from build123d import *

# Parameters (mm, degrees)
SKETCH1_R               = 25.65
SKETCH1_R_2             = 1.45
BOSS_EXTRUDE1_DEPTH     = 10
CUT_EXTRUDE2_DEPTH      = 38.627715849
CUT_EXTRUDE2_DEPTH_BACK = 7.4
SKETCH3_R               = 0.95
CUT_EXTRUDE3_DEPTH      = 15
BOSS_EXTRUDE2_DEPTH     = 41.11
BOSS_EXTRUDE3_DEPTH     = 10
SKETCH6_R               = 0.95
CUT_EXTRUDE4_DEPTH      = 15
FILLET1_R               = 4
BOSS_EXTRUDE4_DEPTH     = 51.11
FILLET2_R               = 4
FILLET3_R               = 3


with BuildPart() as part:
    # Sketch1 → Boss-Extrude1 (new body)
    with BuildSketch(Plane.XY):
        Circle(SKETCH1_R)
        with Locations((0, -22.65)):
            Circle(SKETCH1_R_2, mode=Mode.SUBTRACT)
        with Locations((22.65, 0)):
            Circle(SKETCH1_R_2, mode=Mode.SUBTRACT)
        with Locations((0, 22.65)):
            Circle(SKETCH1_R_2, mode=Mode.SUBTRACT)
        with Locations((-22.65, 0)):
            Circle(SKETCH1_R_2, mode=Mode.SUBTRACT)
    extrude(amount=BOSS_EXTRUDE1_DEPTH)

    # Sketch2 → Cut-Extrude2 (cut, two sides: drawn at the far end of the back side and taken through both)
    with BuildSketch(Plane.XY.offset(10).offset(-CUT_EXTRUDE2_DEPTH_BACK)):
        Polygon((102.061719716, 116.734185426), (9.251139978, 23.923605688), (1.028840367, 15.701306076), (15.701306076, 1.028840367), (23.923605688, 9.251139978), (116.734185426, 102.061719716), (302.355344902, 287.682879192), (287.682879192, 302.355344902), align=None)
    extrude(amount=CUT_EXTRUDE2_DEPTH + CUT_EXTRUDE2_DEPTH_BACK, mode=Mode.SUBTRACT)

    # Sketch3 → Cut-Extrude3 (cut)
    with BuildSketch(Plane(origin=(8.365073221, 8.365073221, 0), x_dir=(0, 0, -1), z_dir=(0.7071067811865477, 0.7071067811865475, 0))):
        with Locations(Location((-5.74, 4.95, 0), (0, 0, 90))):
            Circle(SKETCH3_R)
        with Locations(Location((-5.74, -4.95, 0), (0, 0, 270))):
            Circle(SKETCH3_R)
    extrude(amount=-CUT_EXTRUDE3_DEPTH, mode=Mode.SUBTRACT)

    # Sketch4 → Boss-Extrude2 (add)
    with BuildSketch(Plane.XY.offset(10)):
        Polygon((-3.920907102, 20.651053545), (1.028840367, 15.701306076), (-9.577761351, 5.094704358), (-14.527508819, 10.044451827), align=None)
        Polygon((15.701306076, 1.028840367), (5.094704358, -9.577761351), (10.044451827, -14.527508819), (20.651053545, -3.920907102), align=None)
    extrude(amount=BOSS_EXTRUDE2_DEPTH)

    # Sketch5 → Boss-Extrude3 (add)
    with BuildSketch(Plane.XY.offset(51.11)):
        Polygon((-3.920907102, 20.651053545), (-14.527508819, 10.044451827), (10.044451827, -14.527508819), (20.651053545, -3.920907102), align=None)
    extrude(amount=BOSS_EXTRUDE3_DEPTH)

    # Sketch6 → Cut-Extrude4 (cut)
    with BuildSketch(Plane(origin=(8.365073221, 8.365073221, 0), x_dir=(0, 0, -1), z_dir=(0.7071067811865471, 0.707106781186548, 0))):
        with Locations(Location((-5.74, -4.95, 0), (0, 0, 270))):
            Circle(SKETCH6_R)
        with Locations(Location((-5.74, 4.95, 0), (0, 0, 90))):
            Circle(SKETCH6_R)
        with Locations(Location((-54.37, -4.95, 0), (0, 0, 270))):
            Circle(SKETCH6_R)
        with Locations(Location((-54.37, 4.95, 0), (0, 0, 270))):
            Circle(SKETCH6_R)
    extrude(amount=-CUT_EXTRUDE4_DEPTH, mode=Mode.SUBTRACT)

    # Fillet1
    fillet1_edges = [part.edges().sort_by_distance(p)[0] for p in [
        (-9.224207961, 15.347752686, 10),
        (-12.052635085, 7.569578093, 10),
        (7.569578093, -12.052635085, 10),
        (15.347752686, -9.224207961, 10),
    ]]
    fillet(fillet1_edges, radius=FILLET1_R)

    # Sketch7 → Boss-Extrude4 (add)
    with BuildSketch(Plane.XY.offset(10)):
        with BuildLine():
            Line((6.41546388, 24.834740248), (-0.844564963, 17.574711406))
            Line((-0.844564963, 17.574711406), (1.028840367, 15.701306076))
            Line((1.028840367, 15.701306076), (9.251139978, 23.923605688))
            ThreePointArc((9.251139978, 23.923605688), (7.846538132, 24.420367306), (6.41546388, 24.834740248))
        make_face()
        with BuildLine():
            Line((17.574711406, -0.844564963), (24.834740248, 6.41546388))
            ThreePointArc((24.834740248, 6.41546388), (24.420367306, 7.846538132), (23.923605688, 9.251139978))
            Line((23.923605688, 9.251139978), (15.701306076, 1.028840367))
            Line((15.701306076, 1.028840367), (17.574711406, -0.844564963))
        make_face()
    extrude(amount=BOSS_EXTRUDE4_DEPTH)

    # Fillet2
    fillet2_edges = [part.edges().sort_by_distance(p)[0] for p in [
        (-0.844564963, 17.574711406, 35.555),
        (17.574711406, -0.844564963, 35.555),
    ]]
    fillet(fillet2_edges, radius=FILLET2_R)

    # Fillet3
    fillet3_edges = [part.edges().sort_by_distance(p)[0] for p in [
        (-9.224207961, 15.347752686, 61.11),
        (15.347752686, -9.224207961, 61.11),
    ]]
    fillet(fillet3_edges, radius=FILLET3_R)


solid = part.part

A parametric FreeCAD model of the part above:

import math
import FreeCAD as App
import Part
import Sketcher

V = App.Vector
Q = App.Units.Quantity


def edges_at(feature, points):
    """Names of the edges that pass closest to the given points."""
    edges = feature.Shape.Edges
    near = lambda p: min(range(len(edges)), key=lambda i: edges[i].distToShape(Part.Vertex(*p))[0])
    return sorted({f"Edge{near(p) + 1}" for p in points})


def add_polygon(sketch, points):
    """Adds a closed chain of lines whose ends are joined by coincident constraints."""
    first, n = sketch.GeometryCount, len(points)
    for a, b in zip(points, points[1:] + points[:1]):
        sketch.addGeometry(Part.LineSegment(App.Vector(*a, 0), App.Vector(*b, 0)), False)
    for i in range(n):
        sketch.addConstraint(Sketcher.Constraint("Coincident", first + i, 2, first + (i + 1) % n, 1))

doc = App.newDocument("Part")
body = doc.addObject("PartDesign::Body", "Body")

# Sketch on XY plane
sketch1 = doc.addObject("Sketcher::SketchObject", "Sketch")
body.addObject(sketch1)
sketch1.AttachmentSupport = (doc.XY_Plane, [""])
sketch1.MapMode = "FlatFace"
sketch1.addGeometry(Part.Circle(V(0, 0, 0), V(0, 0, 1), 25.65), False)
sketch1.addGeometry(Part.Circle(V(0, -22.65, 0), V(0, 0, 1), 1.45), False)
sketch1.addGeometry(Part.Circle(V(-22.65, 0, 0), V(0, 0, 1), 1.45), False)
sketch1.addGeometry(Part.Circle(V(22.65, 0, 0), V(0, 0, 1), 1.45), False)
sketch1.addGeometry(Part.Circle(V(0, 22.65, 0), V(0, 0, 1), 1.45), False)
sketch1.addConstraint(Sketcher.Constraint("Coincident", 0, 3, -1, 1))
sketch1.addConstraint(Sketcher.Constraint("Equal", 1, 2))
sketch1.addConstraint(Sketcher.Constraint("Equal", 2, 3))
sketch1.addConstraint(Sketcher.Constraint("Equal", 3, 4))
sketch1.addConstraint(Sketcher.Constraint("Symmetric", 2, 3, 3, 3, -1, 1))
sketch1.addConstraint(Sketcher.Constraint("Symmetric", 1, 3, 4, 3, -1, 1))
sketch1.addConstraint(Sketcher.Constraint("PointOnObject", 1, 3, -2))
sketch1.addConstraint(Sketcher.Constraint("PointOnObject", 2, 3, -1))
sketch1.addConstraint(Sketcher.Constraint("Diameter", 0, 51.3))
sketch1.addConstraint(Sketcher.Constraint("Diameter", 1, 2.9))
sketch1.addConstraint(Sketcher.Constraint("DistanceX", 2, 3, 3, 3, 45.3))
sketch1.addConstraint(Sketcher.Constraint("DistanceY", 1, 3, 4, 3, 45.3))
pad1 = doc.addObject("PartDesign::Pad", "Pad")
body.addObject(pad1)
pad1.Profile = sketch1
pad1.Length = 10

# Sketch on XY plane
sketch2 = doc.addObject("Sketcher::SketchObject", "Sketch001")
body.addObject(sketch2)
sketch2.AttachmentSupport = (doc.XY_Plane, [""])
sketch2.MapMode = "FlatFace"
sketch2.AttachmentOffset = App.Placement(V(0, 0, 10), App.Rotation())
add_polygon(sketch2, [(9.25114, 23.923606), (1.02884, 15.701306), (15.701306, 1.02884), (23.923606, 9.25114), (302.355345, 287.682879), (287.682879, 302.355345)])  # lines 0-5
sketch2.addConstraint(Sketcher.Constraint("Perpendicular", 0, 1))
sketch2.addConstraint(Sketcher.Constraint("Perpendicular", 1, 2))
sketch2.addConstraint(Sketcher.Constraint("Parallel", 2, 3))
sketch2.addConstraint(Sketcher.Constraint("Perpendicular", 3, 4))
sketch2.addConstraint(Sketcher.Constraint("Perpendicular", 4, 5))
sketch2.addConstraint(Sketcher.Constraint("Equal", 0, 2))
sketch2.addConstraint(Sketcher.Constraint("Angle", 0, Q("-135 deg")))
sketch2.addConstraint(Sketcher.Constraint("Distance", 1, 20.75))
sketch2.addConstraint(Sketcher.Constraint("DistanceX", 1, 2, 2, 2, 8.2223))
sketch2.addConstraint(Sketcher.Constraint("Distance", 3, 393.761942))
sketch2.addConstraint(Sketcher.Constraint("DistanceX", -1, 1, 0, 2, 1.02884))
sketch2.addConstraint(Sketcher.Constraint("DistanceY", -1, 1, 1, 2, 1.02884))
pocket1 = doc.addObject("PartDesign::Pocket", "Pocket")
body.addObject(pocket1)
pocket1.Profile = sketch2
pocket1.Type = "TwoLengths"
pocket1.Length = 38.627716
pocket1.Length2 = 7.4
pocket1.Reversed = True

# Sketch on an angled plane
sketch3 = doc.addObject("Sketcher::SketchObject", "Sketch002")
body.addObject(sketch3)
sketch3.Placement = App.Placement(V(8.365073, 8.365073, 0), App.Rotation(V(0, 0, -1), V(-0.707106781, 0.707106781, 0), V(0.707106781, 0.707106781, 0), "ZXY"))
sketch3.addGeometry(Part.Circle(V(-5.74, 4.95, 0), V(0, 0, 1), 0.95), False)
sketch3.addGeometry(Part.Circle(V(-5.74, -4.95, 0), V(0, 0, 1), 0.95), False)
sketch3.addConstraint(Sketcher.Constraint("Equal", 0, 1))
sketch3.addConstraint(Sketcher.Constraint("Symmetric", 0, 3, 1, 3, -1))
sketch3.addConstraint(Sketcher.Constraint("Diameter", 0, 1.9))
sketch3.addConstraint(Sketcher.Constraint("DistanceY", 1, 3, 0, 3, 9.9))
sketch3.addConstraint(Sketcher.Constraint("DistanceX", 0, 3, -1, 1, 5.74))
pocket2 = doc.addObject("PartDesign::Pocket", "Pocket001")
body.addObject(pocket2)
pocket2.Profile = sketch3
pocket2.Length = 15

# Sketch on XY plane
sketch4 = doc.addObject("Sketcher::SketchObject", "Sketch003")
body.addObject(sketch4)
sketch4.AttachmentSupport = (doc.XY_Plane, [""])
sketch4.MapMode = "FlatFace"
sketch4.AttachmentOffset = App.Placement(V(0, 0, 10), App.Rotation())
add_polygon(sketch4, [(1.02884, 15.701306), (-3.920907, 20.651054), (-14.527509, 10.044452), (-9.577761, 5.094704)])  # lines 0-3
add_polygon(sketch4, [(15.701306, 1.02884), (5.094704, -9.577761), (10.044452, -14.527509), (20.651054, -3.920907)])  # lines 4-7
sketch4.addConstraint(Sketcher.Constraint("Perpendicular", 0, 1))
sketch4.addConstraint(Sketcher.Constraint("Perpendicular", 1, 2))
sketch4.addConstraint(Sketcher.Constraint("Perpendicular", 2, 3))
sketch4.addConstraint(Sketcher.Constraint("Parallel", 3, 4))
sketch4.addConstraint(Sketcher.Constraint("Perpendicular", 4, 5))
sketch4.addConstraint(Sketcher.Constraint("Perpendicular", 5, 6))
sketch4.addConstraint(Sketcher.Constraint("Perpendicular", 6, 7))
sketch4.addConstraint(Sketcher.Constraint("Equal", 3, 4))
sketch4.addConstraint(Sketcher.Constraint("Equal", 2, 5))
sketch4.addConstraint(Sketcher.Constraint("Angle", 0, Q("135 deg")))
sketch4.addConstraint(Sketcher.Constraint("Distance", 0, 7.0))
sketch4.addConstraint(Sketcher.Constraint("Distance", 1, 15.0))
sketch4.addConstraint(Sketcher.Constraint("DistanceX", 1, 2, -1, 1, 14.527509))
sketch4.addConstraint(Sketcher.Constraint("DistanceY", -1, 1, 1, 2, 10.044452))
sketch4.addConstraint(Sketcher.Constraint("DistanceY", 4, 2, -1, 1, 9.577761))
sketch4.addConstraint(Sketcher.Constraint("DistanceX", -1, 1, 5, 2, 10.044452))
pad2 = doc.addObject("PartDesign::Pad", "Pad001")
body.addObject(pad2)
pad2.Profile = sketch4
pad2.Length = 41.11

# Sketch on XY plane
sketch5 = doc.addObject("Sketcher::SketchObject", "Sketch004")
body.addObject(sketch5)
sketch5.AttachmentSupport = (doc.XY_Plane, [""])
sketch5.MapMode = "FlatFace"
sketch5.AttachmentOffset = App.Placement(V(0, 0, 51.11), App.Rotation())
add_polygon(sketch5, [(-3.920907, 20.651054), (-14.527509, 10.044452), (10.044452, -14.527509), (20.651054, -3.920907)])  # lines 0-3
sketch5.addConstraint(Sketcher.Constraint("Perpendicular", 0, 1))
sketch5.addConstraint(Sketcher.Constraint("Perpendicular", 1, 2))
sketch5.addConstraint(Sketcher.Constraint("Perpendicular", 2, 3))
sketch5.addConstraint(Sketcher.Constraint("Angle", 0, Q("-135 deg")))
sketch5.addConstraint(Sketcher.Constraint("Distance", 0, 15.0))
sketch5.addConstraint(Sketcher.Constraint("Distance", 1, 34.75))
sketch5.addConstraint(Sketcher.Constraint("DistanceX", 0, 2, -1, 1, 14.527509))
sketch5.addConstraint(Sketcher.Constraint("DistanceY", -1, 1, 0, 2, 10.044452))
pad3 = doc.addObject("PartDesign::Pad", "Pad002")
body.addObject(pad3)
pad3.Profile = sketch5
pad3.Length = 10

# Sketch on an angled plane
sketch6 = doc.addObject("Sketcher::SketchObject", "Sketch005")
body.addObject(sketch6)
sketch6.Placement = App.Placement(V(8.365073, 8.365073, 0), App.Rotation(V(0, 0, -1), V(-0.707106781, 0.707106781, 0), V(0.707106781, 0.707106781, 0), "ZXY"))
sketch6.addGeometry(Part.Circle(V(-5.74, -4.95, 0), V(0, 0, 1), 0.95), False)
sketch6.addGeometry(Part.Circle(V(-5.74, 4.95, 0), V(0, 0, 1), 0.95), False)
sketch6.addGeometry(Part.Circle(V(-54.37, -4.95, 0), V(0, 0, 1), 0.95), False)
sketch6.addGeometry(Part.Circle(V(-54.37, 4.95, 0), V(0, 0, 1), 0.95), False)
sketch6.addConstraint(Sketcher.Constraint("Equal", 0, 1))
sketch6.addConstraint(Sketcher.Constraint("Equal", 1, 2))
sketch6.addConstraint(Sketcher.Constraint("Equal", 2, 3))
sketch6.addConstraint(Sketcher.Constraint("Symmetric", 0, 3, 1, 3, -1))
sketch6.addConstraint(Sketcher.Constraint("Symmetric", 2, 3, 3, 3, -1))
sketch6.addConstraint(Sketcher.Constraint("Horizontal", 0, 3, 2, 3))
sketch6.addConstraint(Sketcher.Constraint("Diameter", 0, 1.9))
sketch6.addConstraint(Sketcher.Constraint("DistanceY", 0, 3, 1, 3, 9.9))
sketch6.addConstraint(Sketcher.Constraint("DistanceX", 0, 3, -1, 1, 5.74))
sketch6.addConstraint(Sketcher.Constraint("DistanceX", 2, 3, -1, 1, 54.37))
pocket3 = doc.addObject("PartDesign::Pocket", "Pocket002")
body.addObject(pocket3)
pocket3.Profile = sketch6
pocket3.Length = 15
doc.recompute()

fillet = doc.addObject("PartDesign::Fillet", "Fillet")
body.addObject(fillet)
fillet.Base = (pocket3, edges_at(pocket3, [
    (-9.224, 15.348, 10),
    (-12.053, 7.57, 10),
    (7.57, -12.053, 10),
    (15.348, -9.224, 10),
]))
fillet.Radius = 4

# Sketch on XY plane
sketch7 = doc.addObject("Sketcher::SketchObject", "Sketch006")
body.addObject(sketch7)
sketch7.AttachmentSupport = (doc.XY_Plane, [""])
sketch7.MapMode = "FlatFace"
sketch7.AttachmentOffset = App.Placement(V(0, 0, 10), App.Rotation())
sketch7.addGeometry(Part.LineSegment(V(6.415464, 24.83474, 0), V(-0.844565, 17.574711, 0)), False)
sketch7.addGeometry(Part.LineSegment(V(-0.844565, 17.574711, 0), V(1.02884, 15.701306, 0)), False)
sketch7.addGeometry(Part.LineSegment(V(1.02884, 15.701306, 0), V(9.25114, 23.923606, 0)), False)
sketch7.addGeometry(Part.ArcOfCircle(Part.Circle(V(0, 0, 0), V(0, 0, 1), 25.65), math.radians(68.85876), math.radians(75.51565)), False)
sketch7.addGeometry(Part.LineSegment(V(17.574711, -0.844565, 0), V(24.83474, 6.415464, 0)), False)
sketch7.addGeometry(Part.ArcOfCircle(Part.Circle(V(0, 0, 0), V(0, 0, 1), 25.65), math.radians(14.48435), math.radians(21.14124)), False)
sketch7.addGeometry(Part.LineSegment(V(23.923606, 9.25114, 0), V(15.701306, 1.02884, 0)), False)
sketch7.addGeometry(Part.LineSegment(V(15.701306, 1.02884, 0), V(17.574711, -0.844565, 0)), False)
sketch7.addConstraint(Sketcher.Constraint("Coincident", 0, 2, 1, 1))
sketch7.addConstraint(Sketcher.Constraint("Coincident", 1, 2, 2, 1))
sketch7.addConstraint(Sketcher.Constraint("Coincident", 2, 2, 3, 1))
sketch7.addConstraint(Sketcher.Constraint("Coincident", 3, 2, 0, 1))
sketch7.addConstraint(Sketcher.Constraint("Coincident", 4, 2, 5, 1))
sketch7.addConstraint(Sketcher.Constraint("Coincident", 5, 2, 6, 1))
sketch7.addConstraint(Sketcher.Constraint("Coincident", 6, 2, 7, 1))
sketch7.addConstraint(Sketcher.Constraint("Coincident", 7, 2, 4, 1))
sketch7.addConstraint(Sketcher.Constraint("Coincident", 3, 3, -1, 1))
sketch7.addConstraint(Sketcher.Constraint("Coincident", 5, 3, -1, 1))
sketch7.addConstraint(Sketcher.Constraint("Equal", 3, 5))
sketch7.addConstraint(Sketcher.Constraint("Perpendicular", 0, 1))
sketch7.addConstraint(Sketcher.Constraint("Perpendicular", 1, 2))
sketch7.addConstraint(Sketcher.Constraint("Parallel", 2, 4))
sketch7.addConstraint(Sketcher.Constraint("Parallel", 4, 6))
sketch7.addConstraint(Sketcher.Constraint("Perpendicular", 6, 7))
sketch7.addConstraint(Sketcher.Constraint("Equal", 0, 4))
sketch7.addConstraint(Sketcher.Constraint("Equal", 2, 6))
sketch7.addConstraint(Sketcher.Constraint("Equal", 1, 7))
sketch7.addConstraint(Sketcher.Constraint("Angle", 0, Q("-135 deg")))
sketch7.addConstraint(Sketcher.Constraint("Radius", 3, 25.65))
sketch7.addConstraint(Sketcher.Constraint("DistanceX", 1, 2, 2, 2, 8.2223))
sketch7.addConstraint(Sketcher.Constraint("DistanceX", 2, 2, 4, 2, 15.5836))
sketch7.addConstraint(Sketcher.Constraint("Distance", 0, 10.267231))
pad4 = doc.addObject("PartDesign::Pad", "Pad003")
body.addObject(pad4)
pad4.Profile = sketch7
pad4.Length = 51.11
doc.recompute()

fillet2 = doc.addObject("PartDesign::Fillet", "Fillet001")
body.addObject(fillet2)
fillet2.Base = (pad4, edges_at(pad4, [(-0.845, 17.575, 35.555), (17.575, -0.845, 35.555)]))
fillet2.Radius = 4
doc.recompute()

fillet3 = doc.addObject("PartDesign::Fillet", "Fillet002")
body.addObject(fillet3)
fillet3.Base = (fillet2, edges_at(fillet2, [(-9.224, 15.348, 61.11), (15.348, -9.224, 61.11)]))
fillet3.Radius = 3

doc.recompute()
